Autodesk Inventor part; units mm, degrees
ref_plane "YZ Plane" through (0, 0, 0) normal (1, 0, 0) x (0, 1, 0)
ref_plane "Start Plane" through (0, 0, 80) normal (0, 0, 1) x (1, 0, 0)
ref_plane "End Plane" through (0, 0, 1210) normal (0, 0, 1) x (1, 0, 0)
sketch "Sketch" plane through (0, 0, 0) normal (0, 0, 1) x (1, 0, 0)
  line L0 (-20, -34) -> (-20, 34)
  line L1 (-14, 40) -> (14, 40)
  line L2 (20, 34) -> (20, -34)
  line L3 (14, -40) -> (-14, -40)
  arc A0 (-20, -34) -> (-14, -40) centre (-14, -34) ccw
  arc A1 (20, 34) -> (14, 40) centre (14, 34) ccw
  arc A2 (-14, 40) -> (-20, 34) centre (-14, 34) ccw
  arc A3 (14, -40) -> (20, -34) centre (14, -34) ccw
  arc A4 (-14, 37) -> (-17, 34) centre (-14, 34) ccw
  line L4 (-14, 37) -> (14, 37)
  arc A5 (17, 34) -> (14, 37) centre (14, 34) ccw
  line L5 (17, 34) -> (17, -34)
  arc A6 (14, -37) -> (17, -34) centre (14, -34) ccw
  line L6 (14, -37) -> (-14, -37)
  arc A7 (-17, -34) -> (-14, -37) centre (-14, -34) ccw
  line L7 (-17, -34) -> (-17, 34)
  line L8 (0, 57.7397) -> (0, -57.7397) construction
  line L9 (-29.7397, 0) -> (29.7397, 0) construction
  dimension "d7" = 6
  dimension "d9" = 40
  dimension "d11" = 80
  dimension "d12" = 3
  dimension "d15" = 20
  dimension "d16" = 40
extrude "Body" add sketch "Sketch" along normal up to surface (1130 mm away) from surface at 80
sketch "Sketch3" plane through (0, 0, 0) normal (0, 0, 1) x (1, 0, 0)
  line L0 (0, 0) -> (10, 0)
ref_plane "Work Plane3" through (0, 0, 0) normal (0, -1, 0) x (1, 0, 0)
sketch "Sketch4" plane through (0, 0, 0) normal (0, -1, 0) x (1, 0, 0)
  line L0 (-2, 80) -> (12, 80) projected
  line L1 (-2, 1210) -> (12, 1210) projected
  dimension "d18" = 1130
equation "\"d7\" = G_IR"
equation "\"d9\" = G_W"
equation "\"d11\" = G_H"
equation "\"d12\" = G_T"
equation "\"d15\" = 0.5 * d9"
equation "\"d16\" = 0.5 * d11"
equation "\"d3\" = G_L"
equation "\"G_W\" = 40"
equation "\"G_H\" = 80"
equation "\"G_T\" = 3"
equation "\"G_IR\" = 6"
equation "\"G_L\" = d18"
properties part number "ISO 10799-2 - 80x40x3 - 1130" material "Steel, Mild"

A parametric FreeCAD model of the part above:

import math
import FreeCAD as App
import Part
import Sketcher
from FreeCAD import Vector

doc = App.newDocument("Part")
body = doc.addObject("PartDesign::Body", "Body")

# Sketch on XY plane
sketch1 = body.newObject("Sketcher::SketchObject", "Sketch")
sketch1.AttachmentSupport = (doc.getObject("XY_Plane"), [""])
sketch1.MapMode = "FlatFace"
sketch1.AttachmentOffset = App.Placement(Vector(0, 0, 80), App.Rotation())
sketch1.addGeometry([
    Part.LineSegment(Vector(-20, 34, 0), Vector(-20, -34, 0)),  # 0
    Part.ArcOfCircle(Part.Circle(Vector(-14, -34, 0), Vector(0, 0, 1), 6), math.radians(180), math.radians(270)),  # 1
    Part.LineSegment(Vector(-14, -40, 0), Vector(14, -40, 0)),  # 2
    Part.ArcOfCircle(Part.Circle(Vector(14, -34, 0), Vector(0, 0, 1), 6), math.radians(-90), math.radians(0)),  # 3
    Part.LineSegment(Vector(20, -34, 0), Vector(20, 34, 0)),  # 4
    Part.ArcOfCircle(Part.Circle(Vector(14, 34, 0), Vector(0, 0, 1), 6), math.radians(0), math.radians(90)),  # 5
    Part.LineSegment(Vector(14, 40, 0), Vector(-14, 40, 0)),  # 6
    Part.ArcOfCircle(Part.Circle(Vector(-14, 34, 0), Vector(0, 0, 1), 6), math.radians(90), math.radians(180)),  # 7
    Part.ArcOfCircle(Part.Circle(Vector(-14, 34, 0), Vector(0, 0, 1), 3), math.radians(90), math.radians(180)),  # 8
    Part.LineSegment(Vector(-14, 37, 0), Vector(14, 37, 0)),  # 9
    Part.ArcOfCircle(Part.Circle(Vector(14, 34, 0), Vector(0, 0, 1), 3), math.radians(0), math.radians(90)),  # 10
    Part.LineSegment(Vector(17, 34, 0), Vector(17, -34, 0)),  # 11
    Part.ArcOfCircle(Part.Circle(Vector(14, -34, 0), Vector(0, 0, 1), 3), math.radians(-90), math.radians(0)),  # 12
    Part.LineSegment(Vector(14, -37, 0), Vector(-14, -37, 0)),  # 13
    Part.ArcOfCircle(Part.Circle(Vector(-14, -34, 0), Vector(0, 0, 1), 3), math.radians(180), math.radians(270)),  # 14
    Part.LineSegment(Vector(-17, -34, 0), Vector(-17, 34, 0)),  # 15
], False)
sketch1.addConstraint([
    Sketcher.Constraint("Tangent", 0, 2, 1, 1),
    Sketcher.Constraint("Tangent", 1, 2, 2, 1),
    Sketcher.Constraint("Tangent", 2, 2, 3, 1),
    Sketcher.Constraint("Tangent", 3, 2, 4, 1),
    Sketcher.Constraint("Tangent", 4, 2, 5, 1),
    Sketcher.Constraint("Tangent", 5, 2, 6, 1),
    Sketcher.Constraint("Tangent", 6, 2, 7, 1),
    Sketcher.Constraint("Tangent", 7, 2, 0, 1),
    Sketcher.Constraint("Tangent", 8, 1, 9, 1),
    Sketcher.Constraint("Tangent", 9, 2, 10, 2),
    Sketcher.Constraint("Tangent", 10, 1, 11, 1),
    Sketcher.Constraint("Tangent", 11, 2, 12, 2),
    Sketcher.Constraint("Tangent", 12, 1, 13, 1),
    Sketcher.Constraint("Tangent", 13, 2, 14, 2),
    Sketcher.Constraint("Tangent", 14, 1, 15, 1),
    Sketcher.Constraint("Tangent", 15, 2, 8, 2),
    Sketcher.Constraint("Vertical", 0),
    Sketcher.Constraint("Horizontal", 2),
    Sketcher.Constraint("Vertical", 4),
    Sketcher.Constraint("Horizontal", 6),
    Sketcher.Constraint("Horizontal", 9),
    Sketcher.Constraint("Vertical", 11),
    Sketcher.Constraint("Horizontal", 13),
    Sketcher.Constraint("Vertical", 15),
    Sketcher.Constraint("Coincident", 8, 3, 7, 3),
    Sketcher.Constraint("Coincident", 10, 3, 5, 3),
    Sketcher.Constraint("Coincident", 12, 3, 3, 3),
    Sketcher.Constraint("Equal", 1, 3),
    Sketcher.Constraint("Equal", 3, 5),
    Sketcher.Constraint("Equal", 5, 7),
    Sketcher.Constraint("Equal", 12, 14),
    Sketcher.Constraint("Symmetric", 1, 3, 5, 3, -1, 1),
    Sketcher.Constraint("Radius", 1, 6.0),
    Sketcher.Constraint("Radius", 8, 3.0),
    Sketcher.Constraint("DistanceX", 0, 2, -1, 1, 20.0),
    Sketcher.Constraint("DistanceY", 1, 2, -1, 1, 40.0),
])
pad1 = body.newObject("PartDesign::Pad", "Pad")
pad1.Profile = sketch1
pad1.Length = 1130

doc.recompute()
